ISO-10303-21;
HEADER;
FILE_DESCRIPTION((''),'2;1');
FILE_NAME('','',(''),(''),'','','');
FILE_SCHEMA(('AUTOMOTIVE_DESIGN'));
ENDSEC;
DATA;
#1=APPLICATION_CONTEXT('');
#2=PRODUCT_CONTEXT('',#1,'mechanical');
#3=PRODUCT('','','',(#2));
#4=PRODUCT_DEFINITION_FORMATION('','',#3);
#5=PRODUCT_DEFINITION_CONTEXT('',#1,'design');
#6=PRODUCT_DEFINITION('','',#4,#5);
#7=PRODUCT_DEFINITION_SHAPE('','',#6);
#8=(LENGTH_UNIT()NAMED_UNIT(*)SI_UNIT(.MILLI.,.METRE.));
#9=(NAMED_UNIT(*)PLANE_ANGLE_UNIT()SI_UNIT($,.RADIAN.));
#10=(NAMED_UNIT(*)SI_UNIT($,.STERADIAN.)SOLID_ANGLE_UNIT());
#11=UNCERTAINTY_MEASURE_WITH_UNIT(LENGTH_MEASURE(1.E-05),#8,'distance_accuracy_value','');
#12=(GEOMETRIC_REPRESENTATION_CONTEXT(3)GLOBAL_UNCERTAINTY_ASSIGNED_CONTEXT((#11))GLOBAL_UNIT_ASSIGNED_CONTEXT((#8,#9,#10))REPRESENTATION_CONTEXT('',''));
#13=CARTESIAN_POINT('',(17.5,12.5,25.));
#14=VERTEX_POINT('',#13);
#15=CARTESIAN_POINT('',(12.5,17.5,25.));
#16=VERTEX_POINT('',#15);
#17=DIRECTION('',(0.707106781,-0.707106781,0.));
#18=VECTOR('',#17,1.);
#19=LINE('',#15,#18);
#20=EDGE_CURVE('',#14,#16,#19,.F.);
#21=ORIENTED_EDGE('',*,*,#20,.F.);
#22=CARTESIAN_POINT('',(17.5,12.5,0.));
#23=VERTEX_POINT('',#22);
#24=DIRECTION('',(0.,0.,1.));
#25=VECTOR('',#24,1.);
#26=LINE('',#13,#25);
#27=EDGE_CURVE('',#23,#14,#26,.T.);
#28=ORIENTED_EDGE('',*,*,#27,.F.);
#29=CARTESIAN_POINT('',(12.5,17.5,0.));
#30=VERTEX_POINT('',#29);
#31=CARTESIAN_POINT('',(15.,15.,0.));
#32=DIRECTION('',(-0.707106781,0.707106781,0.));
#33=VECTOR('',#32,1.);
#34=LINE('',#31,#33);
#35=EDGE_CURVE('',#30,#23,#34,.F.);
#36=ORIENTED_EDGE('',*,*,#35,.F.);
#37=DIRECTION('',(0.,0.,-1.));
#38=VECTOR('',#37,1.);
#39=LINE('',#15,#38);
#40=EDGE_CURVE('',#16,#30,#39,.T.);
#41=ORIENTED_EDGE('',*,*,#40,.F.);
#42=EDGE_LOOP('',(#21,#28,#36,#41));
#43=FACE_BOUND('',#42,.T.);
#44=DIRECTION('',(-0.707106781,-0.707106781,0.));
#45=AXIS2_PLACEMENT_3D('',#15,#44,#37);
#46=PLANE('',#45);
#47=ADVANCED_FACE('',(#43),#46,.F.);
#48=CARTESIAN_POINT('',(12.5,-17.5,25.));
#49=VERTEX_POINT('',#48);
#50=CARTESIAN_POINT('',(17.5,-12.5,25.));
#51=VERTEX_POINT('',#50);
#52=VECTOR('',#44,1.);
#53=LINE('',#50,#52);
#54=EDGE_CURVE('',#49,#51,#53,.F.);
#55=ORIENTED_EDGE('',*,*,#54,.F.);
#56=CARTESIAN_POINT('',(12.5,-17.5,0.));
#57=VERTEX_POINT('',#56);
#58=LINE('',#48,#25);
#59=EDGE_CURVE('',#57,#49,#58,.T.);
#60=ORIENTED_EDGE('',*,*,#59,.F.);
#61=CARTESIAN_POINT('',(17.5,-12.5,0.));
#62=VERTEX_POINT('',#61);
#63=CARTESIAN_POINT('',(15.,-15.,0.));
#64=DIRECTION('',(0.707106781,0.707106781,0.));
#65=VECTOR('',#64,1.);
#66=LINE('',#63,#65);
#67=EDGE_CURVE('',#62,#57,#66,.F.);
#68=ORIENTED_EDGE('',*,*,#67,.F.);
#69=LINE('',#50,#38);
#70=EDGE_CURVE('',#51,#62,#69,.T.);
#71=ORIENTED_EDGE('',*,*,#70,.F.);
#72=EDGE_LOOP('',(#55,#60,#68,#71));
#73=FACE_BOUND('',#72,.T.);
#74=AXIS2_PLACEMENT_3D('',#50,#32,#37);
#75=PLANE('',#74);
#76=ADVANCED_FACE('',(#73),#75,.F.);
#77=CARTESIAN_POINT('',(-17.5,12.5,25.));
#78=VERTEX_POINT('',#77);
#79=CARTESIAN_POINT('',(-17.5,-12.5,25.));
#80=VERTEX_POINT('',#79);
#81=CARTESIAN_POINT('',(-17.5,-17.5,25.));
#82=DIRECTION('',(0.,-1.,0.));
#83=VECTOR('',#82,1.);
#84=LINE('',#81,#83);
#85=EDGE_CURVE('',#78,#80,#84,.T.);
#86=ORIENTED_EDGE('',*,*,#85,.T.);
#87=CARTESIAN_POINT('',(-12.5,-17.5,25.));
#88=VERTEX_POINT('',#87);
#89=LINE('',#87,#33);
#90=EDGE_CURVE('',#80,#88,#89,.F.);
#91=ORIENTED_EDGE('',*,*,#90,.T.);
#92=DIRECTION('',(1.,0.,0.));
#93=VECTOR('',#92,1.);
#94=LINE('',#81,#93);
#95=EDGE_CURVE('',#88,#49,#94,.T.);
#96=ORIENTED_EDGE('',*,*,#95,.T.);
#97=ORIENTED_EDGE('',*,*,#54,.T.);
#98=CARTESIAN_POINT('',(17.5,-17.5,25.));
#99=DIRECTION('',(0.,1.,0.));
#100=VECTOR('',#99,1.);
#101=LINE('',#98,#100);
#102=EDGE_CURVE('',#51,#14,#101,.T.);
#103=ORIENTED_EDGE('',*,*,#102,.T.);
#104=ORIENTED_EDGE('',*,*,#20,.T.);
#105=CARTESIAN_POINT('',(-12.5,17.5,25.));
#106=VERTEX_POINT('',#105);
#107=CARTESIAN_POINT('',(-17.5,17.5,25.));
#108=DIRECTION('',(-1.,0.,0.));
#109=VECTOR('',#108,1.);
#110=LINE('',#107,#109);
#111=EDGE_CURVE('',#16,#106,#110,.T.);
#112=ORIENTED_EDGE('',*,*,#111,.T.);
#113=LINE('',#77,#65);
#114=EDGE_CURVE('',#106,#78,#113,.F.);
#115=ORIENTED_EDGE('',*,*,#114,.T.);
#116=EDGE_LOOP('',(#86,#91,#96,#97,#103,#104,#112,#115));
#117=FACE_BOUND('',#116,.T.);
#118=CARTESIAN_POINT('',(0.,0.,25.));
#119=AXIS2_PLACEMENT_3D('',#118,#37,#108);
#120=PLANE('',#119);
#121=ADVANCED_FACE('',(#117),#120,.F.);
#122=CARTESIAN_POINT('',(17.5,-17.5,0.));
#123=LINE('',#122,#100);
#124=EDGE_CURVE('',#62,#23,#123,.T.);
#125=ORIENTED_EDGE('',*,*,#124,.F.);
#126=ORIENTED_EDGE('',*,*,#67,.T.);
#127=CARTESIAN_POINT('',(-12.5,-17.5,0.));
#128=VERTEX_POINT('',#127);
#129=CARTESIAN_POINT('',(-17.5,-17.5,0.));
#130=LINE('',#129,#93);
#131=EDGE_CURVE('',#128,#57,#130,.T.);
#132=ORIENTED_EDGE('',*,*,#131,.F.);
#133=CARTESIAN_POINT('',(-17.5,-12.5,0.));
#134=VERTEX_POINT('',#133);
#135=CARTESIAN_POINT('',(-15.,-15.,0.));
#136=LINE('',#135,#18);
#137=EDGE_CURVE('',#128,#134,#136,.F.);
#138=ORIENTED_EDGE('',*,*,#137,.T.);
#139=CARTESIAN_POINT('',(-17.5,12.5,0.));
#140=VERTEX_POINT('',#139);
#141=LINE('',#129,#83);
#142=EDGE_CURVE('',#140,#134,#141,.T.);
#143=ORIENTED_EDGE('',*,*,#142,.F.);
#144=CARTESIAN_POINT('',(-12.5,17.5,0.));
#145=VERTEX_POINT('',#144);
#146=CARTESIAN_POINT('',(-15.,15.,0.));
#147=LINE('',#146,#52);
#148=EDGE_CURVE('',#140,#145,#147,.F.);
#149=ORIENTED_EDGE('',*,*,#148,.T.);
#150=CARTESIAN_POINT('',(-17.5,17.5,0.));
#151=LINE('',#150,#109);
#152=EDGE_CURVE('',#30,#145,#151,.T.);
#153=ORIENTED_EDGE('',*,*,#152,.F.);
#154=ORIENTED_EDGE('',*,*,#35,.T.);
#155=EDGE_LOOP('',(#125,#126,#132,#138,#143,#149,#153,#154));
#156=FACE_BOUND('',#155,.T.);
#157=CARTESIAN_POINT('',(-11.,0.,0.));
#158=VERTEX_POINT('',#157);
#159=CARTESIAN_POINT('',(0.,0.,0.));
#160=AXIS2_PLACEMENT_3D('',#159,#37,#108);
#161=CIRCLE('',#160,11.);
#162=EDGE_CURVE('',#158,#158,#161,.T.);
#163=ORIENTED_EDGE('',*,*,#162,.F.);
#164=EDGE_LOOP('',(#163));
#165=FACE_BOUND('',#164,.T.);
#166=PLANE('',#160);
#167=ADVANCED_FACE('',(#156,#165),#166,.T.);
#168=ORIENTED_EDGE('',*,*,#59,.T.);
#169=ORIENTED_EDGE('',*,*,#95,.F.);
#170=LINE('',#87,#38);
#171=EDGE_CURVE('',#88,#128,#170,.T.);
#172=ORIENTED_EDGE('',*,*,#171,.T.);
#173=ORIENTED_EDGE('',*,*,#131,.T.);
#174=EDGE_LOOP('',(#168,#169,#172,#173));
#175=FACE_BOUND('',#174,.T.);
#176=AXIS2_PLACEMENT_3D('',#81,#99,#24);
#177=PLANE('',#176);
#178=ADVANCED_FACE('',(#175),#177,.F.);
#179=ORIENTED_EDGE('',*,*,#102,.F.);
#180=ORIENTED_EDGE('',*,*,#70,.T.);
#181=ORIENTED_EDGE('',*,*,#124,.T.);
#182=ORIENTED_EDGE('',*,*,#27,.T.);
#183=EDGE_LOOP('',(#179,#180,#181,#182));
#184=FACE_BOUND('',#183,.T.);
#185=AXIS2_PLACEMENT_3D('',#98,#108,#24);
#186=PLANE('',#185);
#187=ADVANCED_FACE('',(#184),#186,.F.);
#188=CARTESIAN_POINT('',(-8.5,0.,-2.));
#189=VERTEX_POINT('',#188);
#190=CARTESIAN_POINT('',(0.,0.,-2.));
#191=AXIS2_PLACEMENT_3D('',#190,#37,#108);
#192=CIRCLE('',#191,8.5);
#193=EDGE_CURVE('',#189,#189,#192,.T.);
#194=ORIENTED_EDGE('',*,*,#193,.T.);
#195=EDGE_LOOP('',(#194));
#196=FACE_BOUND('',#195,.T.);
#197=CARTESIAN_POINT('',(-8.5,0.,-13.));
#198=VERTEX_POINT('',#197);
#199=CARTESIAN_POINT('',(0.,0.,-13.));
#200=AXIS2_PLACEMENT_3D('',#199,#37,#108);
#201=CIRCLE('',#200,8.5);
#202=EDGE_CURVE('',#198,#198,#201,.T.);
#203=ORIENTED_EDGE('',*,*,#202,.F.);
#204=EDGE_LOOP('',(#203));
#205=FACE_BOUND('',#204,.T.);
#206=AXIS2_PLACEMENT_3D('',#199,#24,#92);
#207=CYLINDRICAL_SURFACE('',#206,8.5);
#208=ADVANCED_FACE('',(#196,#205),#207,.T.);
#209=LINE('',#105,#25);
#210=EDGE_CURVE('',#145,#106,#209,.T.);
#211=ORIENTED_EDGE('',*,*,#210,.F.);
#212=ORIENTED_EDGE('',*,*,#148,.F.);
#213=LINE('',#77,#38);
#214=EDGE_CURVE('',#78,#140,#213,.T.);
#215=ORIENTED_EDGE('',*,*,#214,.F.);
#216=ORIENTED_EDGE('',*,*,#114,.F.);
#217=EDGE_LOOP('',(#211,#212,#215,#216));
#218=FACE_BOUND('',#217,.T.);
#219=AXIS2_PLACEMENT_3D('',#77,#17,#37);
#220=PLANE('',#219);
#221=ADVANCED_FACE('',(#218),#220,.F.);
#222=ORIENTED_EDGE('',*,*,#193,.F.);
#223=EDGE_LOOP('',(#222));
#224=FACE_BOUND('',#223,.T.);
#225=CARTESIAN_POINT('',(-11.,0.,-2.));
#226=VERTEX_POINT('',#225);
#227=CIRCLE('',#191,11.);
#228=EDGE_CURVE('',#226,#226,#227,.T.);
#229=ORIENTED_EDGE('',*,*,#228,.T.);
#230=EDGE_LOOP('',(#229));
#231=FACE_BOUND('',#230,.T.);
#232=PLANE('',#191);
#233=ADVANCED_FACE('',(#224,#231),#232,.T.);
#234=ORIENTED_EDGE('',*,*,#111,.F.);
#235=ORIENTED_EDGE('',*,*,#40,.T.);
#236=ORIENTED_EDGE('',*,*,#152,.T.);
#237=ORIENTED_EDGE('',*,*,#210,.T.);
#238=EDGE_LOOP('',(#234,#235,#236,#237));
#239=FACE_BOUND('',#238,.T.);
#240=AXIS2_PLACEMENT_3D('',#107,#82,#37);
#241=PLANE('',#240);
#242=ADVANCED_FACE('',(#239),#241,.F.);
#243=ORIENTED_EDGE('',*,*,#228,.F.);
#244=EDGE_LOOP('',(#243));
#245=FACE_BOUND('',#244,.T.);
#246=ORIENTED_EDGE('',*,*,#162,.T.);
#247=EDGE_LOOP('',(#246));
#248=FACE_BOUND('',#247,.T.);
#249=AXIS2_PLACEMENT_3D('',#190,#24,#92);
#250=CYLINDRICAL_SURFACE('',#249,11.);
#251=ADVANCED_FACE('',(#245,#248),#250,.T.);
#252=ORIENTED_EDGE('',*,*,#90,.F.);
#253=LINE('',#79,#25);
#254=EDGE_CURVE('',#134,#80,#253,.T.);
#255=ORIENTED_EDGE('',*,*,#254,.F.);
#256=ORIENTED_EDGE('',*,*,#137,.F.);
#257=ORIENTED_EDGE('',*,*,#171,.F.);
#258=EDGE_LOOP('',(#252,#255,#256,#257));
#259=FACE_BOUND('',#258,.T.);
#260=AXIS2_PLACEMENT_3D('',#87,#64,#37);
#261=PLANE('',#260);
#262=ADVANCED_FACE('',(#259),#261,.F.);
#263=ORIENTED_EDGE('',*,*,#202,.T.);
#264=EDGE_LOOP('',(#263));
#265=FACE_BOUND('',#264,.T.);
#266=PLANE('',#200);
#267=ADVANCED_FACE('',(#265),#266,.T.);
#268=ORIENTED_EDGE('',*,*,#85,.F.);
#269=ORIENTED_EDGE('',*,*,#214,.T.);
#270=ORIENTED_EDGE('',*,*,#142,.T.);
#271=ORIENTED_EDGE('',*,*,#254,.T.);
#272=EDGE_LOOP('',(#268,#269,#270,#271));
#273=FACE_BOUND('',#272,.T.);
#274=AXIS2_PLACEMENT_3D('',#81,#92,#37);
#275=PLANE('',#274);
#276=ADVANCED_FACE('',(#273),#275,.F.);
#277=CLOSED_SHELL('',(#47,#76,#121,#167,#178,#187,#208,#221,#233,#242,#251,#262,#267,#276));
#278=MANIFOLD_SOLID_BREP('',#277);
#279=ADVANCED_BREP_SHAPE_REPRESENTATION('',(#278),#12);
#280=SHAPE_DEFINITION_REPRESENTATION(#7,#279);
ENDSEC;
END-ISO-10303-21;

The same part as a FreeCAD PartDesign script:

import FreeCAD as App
import Part
import Sketcher

V = App.Vector


def edges_at(feature, points):
    """Names of the edges that pass closest to the given points."""
    edges = feature.Shape.Edges
    near = lambda p: min(range(len(edges)), key=lambda i: edges[i].distToShape(Part.Vertex(*p))[0])
    return sorted({f"Edge{near(p) + 1}" for p in points})

doc = App.newDocument("Part")
body = doc.addObject("PartDesign::Body", "Body")

# Sketch on XY plane
sketch1 = body.newObject("Sketcher::SketchObject", "Sketch")
sketch1.AttachmentSupport = (doc.getObject("XY_Plane"), [""])
sketch1.MapMode = "FlatFace"
sketch1.addGeometry([
    Part.LineSegment(V(-18, 18, 0), V(-18, -18, 0)),
    Part.LineSegment(V(-18, -18, 0), V(18, -18, 0)),
    Part.LineSegment(V(18, -18, 0), V(18, 18, 0)),
    Part.LineSegment(V(18, 18, 0), V(-18, 18, 0)),
], False)
sketch1.addConstraint([
    Sketcher.Constraint("Coincident", 0, 2, 1, 1),
    Sketcher.Constraint("Coincident", 1, 2, 2, 1),
    Sketcher.Constraint("Coincident", 2, 2, 3, 1),
    Sketcher.Constraint("Coincident", 3, 2, 0, 1),
    Sketcher.Constraint("Vertical", 0),
    Sketcher.Constraint("Horizontal", 1),
    Sketcher.Constraint("Vertical", 2),
    Sketcher.Constraint("Horizontal", 3),
    Sketcher.Constraint("Symmetric", 0, 2, 2, 2, -1, 1),
    Sketcher.Constraint("Equal", 3, 0),
    Sketcher.Constraint("DistanceX", 1, 1, 1, 2, 35.0),
])
pad1 = body.newObject("PartDesign::Pad", "Pad")
pad1.Profile = sketch1
pad1.Length = 25
doc.recompute()

chamfer = body.newObject("PartDesign::Chamfer", "Chamfer")
chamfer.Base = (pad1, edges_at(pad1, [
    (17.5, -17.5, 12.5),
    (-17.5, -17.5, 12.5),
    (-17.5, 17.5, 12.5),
    (17.5, 17.5, 12.5),
]))
chamfer.Size = 5

# Sketch on XY plane
sketch2 = body.newObject("Sketcher::SketchObject", "Sketch001")
sketch2.AttachmentSupport = (doc.getObject("XY_Plane"), [""])
sketch2.MapMode = "FlatFace"
sketch2.addGeometry(Part.Circle(V(0, 0, 0), V(0, 0, 1), 11), False)
sketch2.addConstraint([
    Sketcher.Constraint("Coincident", 0, 3, -1, 1),
    Sketcher.Constraint("Diameter", 0, 22.0),
])
pad2 = body.newObject("PartDesign::Pad", "Pad001")
pad2.Profile = sketch2
pad2.Length = 2
pad2.Reversed = True

# Sketch on XY plane
sketch3 = body.newObject("Sketcher::SketchObject", "Sketch002")
sketch3.AttachmentSupport = (doc.getObject("XY_Plane"), [""])
sketch3.MapMode = "FlatFace"
sketch3.AttachmentOffset = App.Placement(V(0, 0, -2), App.Rotation())
sketch3.addGeometry(Part.Circle(V(0, 0, 0), V(0, 0, 1), 8), False)
sketch3.addConstraint([
    Sketcher.Constraint("Coincident", 0, 3, -1, 1),
    Sketcher.Constraint("Diameter", 0, 17.0),
])
pad3 = body.newObject("PartDesign::Pad", "Pad002")
pad3.Profile = sketch3
pad3.Length = 11
pad3.Reversed = True

doc.recompute()
